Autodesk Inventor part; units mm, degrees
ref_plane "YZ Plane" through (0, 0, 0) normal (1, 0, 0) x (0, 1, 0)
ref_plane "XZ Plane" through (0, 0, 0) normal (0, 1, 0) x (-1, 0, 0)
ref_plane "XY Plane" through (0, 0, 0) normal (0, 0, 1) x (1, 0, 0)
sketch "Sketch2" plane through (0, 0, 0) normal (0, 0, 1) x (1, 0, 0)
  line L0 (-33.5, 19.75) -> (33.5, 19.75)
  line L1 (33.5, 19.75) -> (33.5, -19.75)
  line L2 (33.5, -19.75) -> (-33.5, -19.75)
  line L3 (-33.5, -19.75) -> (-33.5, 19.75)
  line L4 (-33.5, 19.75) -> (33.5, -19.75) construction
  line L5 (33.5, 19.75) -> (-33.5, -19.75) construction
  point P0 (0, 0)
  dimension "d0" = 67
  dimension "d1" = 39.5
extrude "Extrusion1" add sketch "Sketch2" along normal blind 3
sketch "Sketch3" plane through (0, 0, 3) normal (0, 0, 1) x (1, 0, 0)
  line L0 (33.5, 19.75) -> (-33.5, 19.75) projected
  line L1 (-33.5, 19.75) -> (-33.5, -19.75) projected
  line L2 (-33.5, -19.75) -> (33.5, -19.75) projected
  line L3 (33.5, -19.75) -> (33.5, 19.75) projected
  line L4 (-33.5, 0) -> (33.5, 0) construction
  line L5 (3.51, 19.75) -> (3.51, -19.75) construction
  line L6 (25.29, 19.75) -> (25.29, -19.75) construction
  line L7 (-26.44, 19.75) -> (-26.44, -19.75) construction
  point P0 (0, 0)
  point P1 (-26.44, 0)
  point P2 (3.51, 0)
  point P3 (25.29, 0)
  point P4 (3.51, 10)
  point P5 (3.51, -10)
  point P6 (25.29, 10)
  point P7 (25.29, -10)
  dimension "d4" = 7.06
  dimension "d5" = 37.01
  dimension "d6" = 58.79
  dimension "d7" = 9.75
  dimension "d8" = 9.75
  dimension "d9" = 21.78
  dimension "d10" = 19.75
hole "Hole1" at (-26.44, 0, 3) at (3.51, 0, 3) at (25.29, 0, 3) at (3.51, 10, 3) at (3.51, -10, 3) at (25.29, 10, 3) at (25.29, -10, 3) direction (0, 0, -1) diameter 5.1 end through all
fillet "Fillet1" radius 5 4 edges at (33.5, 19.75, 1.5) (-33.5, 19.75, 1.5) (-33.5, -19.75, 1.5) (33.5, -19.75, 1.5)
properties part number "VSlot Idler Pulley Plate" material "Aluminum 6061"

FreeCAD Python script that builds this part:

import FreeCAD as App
import Part
import Sketcher


def edges_at(feature, points):
    """Names of the edges that pass closest to the given points."""
    edges = feature.Shape.Edges
    near = lambda p: min(range(len(edges)), key=lambda i: edges[i].distToShape(Part.Vertex(*p))[0])
    return sorted({f"Edge{near(p) + 1}" for p in points})


def add_polygon(sketch, points):
    """Adds a closed chain of lines whose ends are joined by coincident constraints."""
    first, n = sketch.GeometryCount, len(points)
    for a, b in zip(points, points[1:] + points[:1]):
        sketch.addGeometry(Part.LineSegment(App.Vector(*a, 0), App.Vector(*b, 0)), False)
    for i in range(n):
        sketch.addConstraint(Sketcher.Constraint("Coincident", first + i, 2, first + (i + 1) % n, 1))

doc = App.newDocument("Part")
body = doc.addObject("PartDesign::Body", "Body")

sketch1 = doc.addObject("Sketcher::SketchObject", "Sketch")
body.addObject(sketch1)
sketch1.AttachmentSupport = (doc.XY_Plane, [""])
sketch1.MapMode = "FlatFace"
add_polygon(sketch1, [(34, 20), (-34, 20), (-34, -20), (34, -20)])
sketch1.addConstraint([
    Sketcher.Constraint("Horizontal", 0),
    Sketcher.Constraint("Vertical", 1),
    Sketcher.Constraint("Horizontal", 2),
    Sketcher.Constraint("Vertical", 3),
    Sketcher.Constraint("Symmetric", 0, 2, 2, 2, -1, 1),
    Sketcher.Constraint("DistanceX", 0, 2, 0, 1, 67.0),
    Sketcher.Constraint("DistanceY", 1, 2, 1, 1, 39.5),
])
pad1 = doc.addObject("PartDesign::Pad", "Pad")
body.addObject(pad1)
pad1.Profile = sketch1
pad1.Length = 3

sketch2 = doc.addObject("Sketcher::SketchObject", "Sketch001")
body.addObject(sketch2)
sketch2.AttachmentSupport = (doc.XY_Plane, [""])
sketch2.MapMode = "FlatFace"
sketch2.AttachmentOffset = App.Placement(App.Vector(0, 0, 3), App.Rotation())
sketch2.addGeometry([
    Part.Circle(App.Vector(-26.4, 0, 0), App.Vector(0, 0, 1), 2.5),
    Part.Circle(App.Vector(3.5, 0, 0), App.Vector(0, 0, 1), 2.5),
    Part.Circle(App.Vector(25.3, 0, 0), App.Vector(0, 0, 1), 2.5),
    Part.Circle(App.Vector(3.5, 10, 0), App.Vector(0, 0, 1), 2.5),
    Part.Circle(App.Vector(3.5, -10, 0), App.Vector(0, 0, 1), 2.5),
    Part.Circle(App.Vector(25.3, 10, 0), App.Vector(0, 0, 1), 2.5),
    Part.Circle(App.Vector(25.3, -10, 0), App.Vector(0, 0, 1), 2.5),
], False)
sketch2.addConstraint([
    Sketcher.Constraint("Equal", 0, 1),
    Sketcher.Constraint("Equal", 1, 2),
    Sketcher.Constraint("Equal", 2, 3),
    Sketcher.Constraint("Equal", 3, 4),
    Sketcher.Constraint("Equal", 4, 5),
    Sketcher.Constraint("Equal", 5, 6),
    Sketcher.Constraint("Symmetric", 3, 3, 4, 3, -1),
    Sketcher.Constraint("Symmetric", 5, 3, 6, 3, -1),
    Sketcher.Constraint("PointOnObject", 0, 3, -1),
    Sketcher.Constraint("PointOnObject", 1, 3, -1),
    Sketcher.Constraint("PointOnObject", 2, 3, -1),
    Sketcher.Constraint("Horizontal", 3, 3, 5, 3),
    Sketcher.Constraint("Vertical", 1, 3, 3, 3),
    Sketcher.Constraint("Vertical", 2, 3, 5, 3),
    Sketcher.Constraint("Diameter", 0, 5.1),
    Sketcher.Constraint("DistanceY", -1, 1, 3, 3, 10.0),
    Sketcher.Constraint("DistanceX", 0, 3, -1, 1, 26.44),
    Sketcher.Constraint("DistanceX", -1, 1, 1, 3, 3.51),
    Sketcher.Constraint("DistanceX", -1, 1, 2, 3, 25.29),
])
doc.recompute()
hole = doc.addObject("PartDesign::Hole", "Hole")
body.addObject(hole)
hole.Profile = sketch2
hole.ThreadType = "None"
hole.Diameter = 5.1
hole.DepthType = "ThroughAll"
doc.recompute()

fillet = doc.addObject("PartDesign::Fillet", "Fillet")
body.addObject(fillet)
fillet.Base = (hole, edges_at(hole, [
    (33.5, 19.75, 1.5),
    (-33.5, 19.75, 1.5),
    (-33.5, -19.75, 1.5),
    (33.5, -19.75, 1.5),
]))
fillet.Radius = 5

doc.recompute()
